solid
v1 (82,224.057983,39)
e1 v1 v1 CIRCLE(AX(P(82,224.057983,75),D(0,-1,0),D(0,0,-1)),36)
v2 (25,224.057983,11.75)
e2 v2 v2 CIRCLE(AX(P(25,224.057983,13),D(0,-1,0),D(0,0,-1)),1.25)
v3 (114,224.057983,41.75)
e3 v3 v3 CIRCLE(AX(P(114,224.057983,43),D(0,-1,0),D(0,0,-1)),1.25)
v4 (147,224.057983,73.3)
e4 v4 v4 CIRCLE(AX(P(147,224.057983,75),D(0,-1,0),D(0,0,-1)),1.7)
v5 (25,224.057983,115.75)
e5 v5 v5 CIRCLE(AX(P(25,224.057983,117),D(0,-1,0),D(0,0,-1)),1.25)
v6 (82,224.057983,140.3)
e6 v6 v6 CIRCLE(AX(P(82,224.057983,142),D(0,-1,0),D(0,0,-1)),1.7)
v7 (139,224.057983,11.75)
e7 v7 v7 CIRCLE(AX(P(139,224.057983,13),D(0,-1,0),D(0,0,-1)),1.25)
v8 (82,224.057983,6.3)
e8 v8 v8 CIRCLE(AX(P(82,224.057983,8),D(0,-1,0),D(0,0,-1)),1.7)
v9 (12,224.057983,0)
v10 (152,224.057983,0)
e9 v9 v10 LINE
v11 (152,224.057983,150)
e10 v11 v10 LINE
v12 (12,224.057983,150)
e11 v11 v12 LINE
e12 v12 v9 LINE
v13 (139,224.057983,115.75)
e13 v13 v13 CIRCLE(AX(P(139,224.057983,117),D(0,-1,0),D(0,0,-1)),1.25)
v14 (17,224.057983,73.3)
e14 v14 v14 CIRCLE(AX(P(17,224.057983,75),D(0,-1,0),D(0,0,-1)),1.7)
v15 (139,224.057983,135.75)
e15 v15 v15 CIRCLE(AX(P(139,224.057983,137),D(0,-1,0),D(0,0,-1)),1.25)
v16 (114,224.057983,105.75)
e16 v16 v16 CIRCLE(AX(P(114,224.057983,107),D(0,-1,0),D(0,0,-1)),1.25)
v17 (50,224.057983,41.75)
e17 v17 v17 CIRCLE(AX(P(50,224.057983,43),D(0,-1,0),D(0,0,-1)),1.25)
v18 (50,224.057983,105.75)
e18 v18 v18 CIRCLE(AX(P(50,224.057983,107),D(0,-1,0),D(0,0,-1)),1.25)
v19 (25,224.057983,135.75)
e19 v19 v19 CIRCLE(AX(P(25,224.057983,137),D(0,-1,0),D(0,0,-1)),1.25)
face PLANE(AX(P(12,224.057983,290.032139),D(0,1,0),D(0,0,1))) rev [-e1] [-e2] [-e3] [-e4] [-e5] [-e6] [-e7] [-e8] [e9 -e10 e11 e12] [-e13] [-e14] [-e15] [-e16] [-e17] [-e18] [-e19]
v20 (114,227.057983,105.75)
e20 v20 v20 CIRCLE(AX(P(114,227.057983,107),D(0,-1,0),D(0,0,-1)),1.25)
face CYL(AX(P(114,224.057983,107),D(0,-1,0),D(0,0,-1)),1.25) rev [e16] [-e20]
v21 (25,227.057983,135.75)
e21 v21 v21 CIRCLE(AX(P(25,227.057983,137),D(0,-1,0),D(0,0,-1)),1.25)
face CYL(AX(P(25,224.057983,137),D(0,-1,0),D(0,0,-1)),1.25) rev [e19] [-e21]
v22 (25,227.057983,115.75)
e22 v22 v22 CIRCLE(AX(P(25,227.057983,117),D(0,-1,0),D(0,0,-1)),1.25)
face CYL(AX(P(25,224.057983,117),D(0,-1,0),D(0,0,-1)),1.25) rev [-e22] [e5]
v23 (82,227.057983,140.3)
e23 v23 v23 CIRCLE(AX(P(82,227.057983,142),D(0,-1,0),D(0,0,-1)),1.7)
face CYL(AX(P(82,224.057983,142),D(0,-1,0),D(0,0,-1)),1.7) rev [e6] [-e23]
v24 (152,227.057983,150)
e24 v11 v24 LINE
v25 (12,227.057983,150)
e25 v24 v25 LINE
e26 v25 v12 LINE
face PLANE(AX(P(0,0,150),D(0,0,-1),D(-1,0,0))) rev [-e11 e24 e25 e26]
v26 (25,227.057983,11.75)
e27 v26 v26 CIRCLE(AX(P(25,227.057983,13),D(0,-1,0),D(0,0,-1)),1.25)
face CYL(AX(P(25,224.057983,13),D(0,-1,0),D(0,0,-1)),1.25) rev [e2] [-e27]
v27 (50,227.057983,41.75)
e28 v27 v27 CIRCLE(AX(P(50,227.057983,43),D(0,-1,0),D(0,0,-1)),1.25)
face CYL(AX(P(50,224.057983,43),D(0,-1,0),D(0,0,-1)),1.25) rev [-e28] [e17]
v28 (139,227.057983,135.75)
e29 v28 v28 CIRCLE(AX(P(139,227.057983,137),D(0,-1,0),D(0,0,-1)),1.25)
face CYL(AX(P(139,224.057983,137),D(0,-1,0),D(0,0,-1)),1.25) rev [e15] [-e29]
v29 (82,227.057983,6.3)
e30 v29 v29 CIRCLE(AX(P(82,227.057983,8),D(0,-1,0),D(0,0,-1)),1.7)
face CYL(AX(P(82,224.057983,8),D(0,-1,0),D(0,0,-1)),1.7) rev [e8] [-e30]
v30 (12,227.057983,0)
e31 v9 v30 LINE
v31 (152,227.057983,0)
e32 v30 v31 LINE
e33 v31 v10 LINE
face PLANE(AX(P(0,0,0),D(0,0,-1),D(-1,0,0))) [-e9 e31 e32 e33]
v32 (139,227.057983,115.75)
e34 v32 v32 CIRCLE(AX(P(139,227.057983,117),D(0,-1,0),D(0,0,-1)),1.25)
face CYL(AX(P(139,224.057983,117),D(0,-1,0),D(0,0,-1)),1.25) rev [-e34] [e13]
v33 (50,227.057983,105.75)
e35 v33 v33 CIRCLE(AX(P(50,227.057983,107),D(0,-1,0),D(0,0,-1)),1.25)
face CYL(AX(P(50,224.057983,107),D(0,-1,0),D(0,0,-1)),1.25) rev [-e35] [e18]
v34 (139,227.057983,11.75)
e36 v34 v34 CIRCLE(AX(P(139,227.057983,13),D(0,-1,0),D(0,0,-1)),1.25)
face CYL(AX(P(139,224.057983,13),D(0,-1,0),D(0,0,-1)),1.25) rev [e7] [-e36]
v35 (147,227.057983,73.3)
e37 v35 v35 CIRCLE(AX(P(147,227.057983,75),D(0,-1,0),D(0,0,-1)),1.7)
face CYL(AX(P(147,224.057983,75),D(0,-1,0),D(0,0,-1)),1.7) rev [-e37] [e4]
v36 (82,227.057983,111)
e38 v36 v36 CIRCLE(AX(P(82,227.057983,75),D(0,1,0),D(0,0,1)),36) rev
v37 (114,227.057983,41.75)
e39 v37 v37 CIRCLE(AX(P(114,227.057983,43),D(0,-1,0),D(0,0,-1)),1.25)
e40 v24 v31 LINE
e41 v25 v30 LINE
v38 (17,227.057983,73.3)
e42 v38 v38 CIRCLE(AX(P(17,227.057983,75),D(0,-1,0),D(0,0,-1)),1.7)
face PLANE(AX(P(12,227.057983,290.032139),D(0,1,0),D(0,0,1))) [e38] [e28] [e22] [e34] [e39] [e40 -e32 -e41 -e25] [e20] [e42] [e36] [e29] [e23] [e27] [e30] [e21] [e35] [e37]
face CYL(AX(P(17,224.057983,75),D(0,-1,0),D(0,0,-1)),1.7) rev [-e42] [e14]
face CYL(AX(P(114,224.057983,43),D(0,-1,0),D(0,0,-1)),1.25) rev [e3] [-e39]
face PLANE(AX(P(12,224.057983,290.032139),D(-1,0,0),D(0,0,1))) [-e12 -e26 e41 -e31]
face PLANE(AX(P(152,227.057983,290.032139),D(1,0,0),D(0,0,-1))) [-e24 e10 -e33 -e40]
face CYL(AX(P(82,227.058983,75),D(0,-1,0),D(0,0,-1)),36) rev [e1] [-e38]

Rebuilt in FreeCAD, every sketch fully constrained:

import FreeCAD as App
import Part
import Sketcher
Q = App.Units.Quantity


def add_polygon(sketch, points):
    """Adds a closed chain of lines whose ends are joined by coincident constraints."""
    first, n = sketch.GeometryCount, len(points)
    for a, b in zip(points, points[1:] + points[:1]):
        sketch.addGeometry(Part.LineSegment(App.Vector(*a, 0), App.Vector(*b, 0)), False)
    for i in range(n):
        sketch.addConstraint(Sketcher.Constraint("Coincident", first + i, 2, first + (i + 1) % n, 1))

doc = App.newDocument("Part")
body = doc.addObject("PartDesign::Body", "Body")

# Sketch on XY plane
sketch1 = body.newObject("Sketcher::SketchObject", "Sketch")
sketch1.AttachmentSupport = (doc.getObject("XY_Plane"), [""])
sketch1.MapMode = "FlatFace"
add_polygon(sketch1, [(12, 227.1), (12, 224.1), (152, 224.1), (152, 227.1)])  # lines 0-3
sketch1.addConstraint([
    Sketcher.Constraint("Vertical", 0),
    Sketcher.Constraint("Horizontal", 1),
    Sketcher.Constraint("Vertical", 2),
    Sketcher.Constraint("Horizontal", 3),
    Sketcher.Constraint("DistanceX", 1, 1, 1, 2, Q("140 mm")),
    Sketcher.Constraint("DistanceY", 0, 2, 0, 1, Q("3 mm")),
    Sketcher.Constraint("DistanceX", -1, 1, 0, 2, Q("12 mm")),
    Sketcher.Constraint("DistanceY", -1, 1, 0, 2, Q("224.057983 mm")),
])
pad1 = body.newObject("PartDesign::Pad", "Pad")
pad1.Profile = sketch1
pad1.Length = 150

# Sketch on XZ plane
sketch2 = body.newObject("Sketcher::SketchObject", "Sketch001")
sketch2.AttachmentSupport = (doc.getObject("XZ_Plane"), [""])
sketch2.MapMode = "FlatFace"
sketch2.AttachmentOffset = App.Placement(App.Vector(0, 0, -224.057983), App.Rotation())
sketch2.addGeometry(Part.Circle(App.Vector(82, 75, 0), App.Vector(0, 0, 1), 36), False)
sketch2.addConstraint([
    Sketcher.Constraint("Diameter", 0, Q("72 mm")),
    Sketcher.Constraint("DistanceX", -1, 1, 0, 3, Q("82 mm")),
    Sketcher.Constraint("DistanceY", -1, 1, 0, 3, Q("75 mm")),
])
pocket1 = body.newObject("PartDesign::Pocket", "Pocket")
pocket1.Profile = sketch2
pocket1.Type = "UpToFirst"

# Sketch on XZ plane
sketch3 = body.newObject("Sketcher::SketchObject", "Sketch002")
sketch3.AttachmentSupport = (doc.getObject("XZ_Plane"), [""])
sketch3.MapMode = "FlatFace"
sketch3.AttachmentOffset = App.Placement(App.Vector(0, 0, -224.057983), App.Rotation())
sketch3.addGeometry([
    Part.Circle(App.Vector(50, 107, 0), App.Vector(0, 0, 1), 1.2),
    Part.Circle(App.Vector(50, 43, 0), App.Vector(0, 0, 1), 1.2),
    Part.Circle(App.Vector(114, 43, 0), App.Vector(0, 0, 1), 1.2),
    Part.Circle(App.Vector(114, 107, 0), App.Vector(0, 0, 1), 1.2),
], False)
sketch3.addConstraint([
    Sketcher.Constraint("Equal", 0, 1),
    Sketcher.Constraint("Equal", 1, 2),
    Sketcher.Constraint("Equal", 2, 3),
    Sketcher.Constraint("Horizontal", 1, 3, 2, 3),
    Sketcher.Constraint("Horizontal", 0, 3, 3, 3),
    Sketcher.Constraint("Vertical", 0, 3, 1, 3),
    Sketcher.Constraint("Vertical", 2, 3, 3, 3),
    Sketcher.Constraint("Diameter", 0, Q("2.5 mm")),
    Sketcher.Constraint("DistanceX", -1, 1, 0, 3, Q("50 mm")),
    Sketcher.Constraint("DistanceY", -1, 1, 0, 3, Q("107 mm")),
    Sketcher.Constraint("DistanceY", -1, 1, 1, 3, Q("43 mm")),
    Sketcher.Constraint("DistanceX", -1, 1, 2, 3, Q("114 mm")),
])
doc.recompute()
hole = body.newObject("PartDesign::Hole", "Hole")
hole.Profile = sketch3
hole.ThreadType = "None"
hole.Diameter = 2.5
hole.DepthType = "ThroughAll"

# Sketch on XZ plane
sketch4 = body.newObject("Sketcher::SketchObject", "Sketch003")
sketch4.AttachmentSupport = (doc.getObject("XZ_Plane"), [""])
sketch4.MapMode = "FlatFace"
sketch4.AttachmentOffset = App.Placement(App.Vector(0, 0, -224.057983), App.Rotation())
sketch4.addGeometry([
    Part.Circle(App.Vector(82, 142, 0), App.Vector(0, 0, 1), 1.7),
    Part.Circle(App.Vector(147, 75, 0), App.Vector(0, 0, 1), 1.7),
    Part.Circle(App.Vector(82, 8, 0), App.Vector(0, 0, 1), 1.7),
    Part.Circle(App.Vector(17, 75, 0), App.Vector(0, 0, 1), 1.7),
], False)
sketch4.addConstraint([
    Sketcher.Constraint("Equal", 0, 1),
    Sketcher.Constraint("Equal", 1, 2),
    Sketcher.Constraint("Equal", 2, 3),
    Sketcher.Constraint("Horizontal", 1, 3, 3, 3),
    Sketcher.Constraint("Vertical", 0, 3, 2, 3),
    Sketcher.Constraint("Diameter", 0, Q("3.4 mm")),
    Sketcher.Constraint("DistanceX", -1, 1, 0, 3, Q("82 mm")),
    Sketcher.Constraint("DistanceY", -1, 1, 0, 3, Q("142 mm")),
    Sketcher.Constraint("DistanceX", -1, 1, 1, 3, Q("147 mm")),
    Sketcher.Constraint("DistanceY", -1, 1, 1, 3, Q("75 mm")),
    Sketcher.Constraint("DistanceY", -1, 1, 2, 3, Q("8 mm")),
    Sketcher.Constraint("DistanceX", -1, 1, 3, 3, Q("17 mm")),
])
doc.recompute()
hole2 = body.newObject("PartDesign::Hole", "Hole001")
hole2.Profile = sketch4
hole2.ThreadType = "None"
hole2.Diameter = 3.4
hole2.DepthType = "ThroughAll"

# Sketch on XZ plane
sketch5 = body.newObject("Sketcher::SketchObject", "Sketch004")
sketch5.AttachmentSupport = (doc.getObject("XZ_Plane"), [""])
sketch5.MapMode = "FlatFace"
sketch5.AttachmentOffset = App.Placement(App.Vector(0, 0, -224.057983), App.Rotation())
sketch5.addGeometry([
    Part.Circle(App.Vector(139, 137, 0), App.Vector(0, 0, 1), 1.2),  # 0
    Part.Circle(App.Vector(139, 117, 0), App.Vector(0, 0, 1), 1.2),  # 1
    Part.Circle(App.Vector(139, 13, 0), App.Vector(0, 0, 1), 1.2),  # 2
    Part.Circle(App.Vector(25, 137, 0), App.Vector(0, 0, 1), 1.2),  # 3
    Part.Circle(App.Vector(25, 117, 0), App.Vector(0, 0, 1), 1.2),  # 4
    Part.Circle(App.Vector(25, 13, 0), App.Vector(0, 0, 1), 1.2),  # 5
], False)
sketch5.addConstraint([
    Sketcher.Constraint("Equal", 0, 1),
    Sketcher.Constraint("Equal", 1, 2),
    Sketcher.Constraint("Equal", 2, 3),
    Sketcher.Constraint("Equal", 3, 4),
    Sketcher.Constraint("Equal", 4, 5),
    Sketcher.Constraint("Horizontal", 0, 3, 3, 3),
    Sketcher.Constraint("Horizontal", 1, 3, 4, 3),
    Sketcher.Constraint("Horizontal", 2, 3, 5, 3),
    Sketcher.Constraint("Vertical", 0, 3, 1, 3),
    Sketcher.Constraint("Vertical", 1, 3, 2, 3),
    Sketcher.Constraint("Vertical", 3, 3, 4, 3),
    Sketcher.Constraint("Vertical", 4, 3, 5, 3),
    Sketcher.Constraint("Diameter", 0, Q("2.5 mm")),
    Sketcher.Constraint("DistanceX", -1, 1, 0, 3, Q("139 mm")),
    Sketcher.Constraint("DistanceY", -1, 1, 0, 3, Q("137 mm")),
    Sketcher.Constraint("DistanceY", -1, 1, 1, 3, Q("117 mm")),
    Sketcher.Constraint("DistanceY", -1, 1, 2, 3, Q("13 mm")),
    Sketcher.Constraint("DistanceX", -1, 1, 3, 3, Q("25 mm")),
])
doc.recompute()
hole3 = body.newObject("PartDesign::Hole", "Hole002")
hole3.Profile = sketch5
hole3.ThreadType = "None"
hole3.Diameter = 2.5
hole3.DepthType = "ThroughAll"

doc.recompute()
